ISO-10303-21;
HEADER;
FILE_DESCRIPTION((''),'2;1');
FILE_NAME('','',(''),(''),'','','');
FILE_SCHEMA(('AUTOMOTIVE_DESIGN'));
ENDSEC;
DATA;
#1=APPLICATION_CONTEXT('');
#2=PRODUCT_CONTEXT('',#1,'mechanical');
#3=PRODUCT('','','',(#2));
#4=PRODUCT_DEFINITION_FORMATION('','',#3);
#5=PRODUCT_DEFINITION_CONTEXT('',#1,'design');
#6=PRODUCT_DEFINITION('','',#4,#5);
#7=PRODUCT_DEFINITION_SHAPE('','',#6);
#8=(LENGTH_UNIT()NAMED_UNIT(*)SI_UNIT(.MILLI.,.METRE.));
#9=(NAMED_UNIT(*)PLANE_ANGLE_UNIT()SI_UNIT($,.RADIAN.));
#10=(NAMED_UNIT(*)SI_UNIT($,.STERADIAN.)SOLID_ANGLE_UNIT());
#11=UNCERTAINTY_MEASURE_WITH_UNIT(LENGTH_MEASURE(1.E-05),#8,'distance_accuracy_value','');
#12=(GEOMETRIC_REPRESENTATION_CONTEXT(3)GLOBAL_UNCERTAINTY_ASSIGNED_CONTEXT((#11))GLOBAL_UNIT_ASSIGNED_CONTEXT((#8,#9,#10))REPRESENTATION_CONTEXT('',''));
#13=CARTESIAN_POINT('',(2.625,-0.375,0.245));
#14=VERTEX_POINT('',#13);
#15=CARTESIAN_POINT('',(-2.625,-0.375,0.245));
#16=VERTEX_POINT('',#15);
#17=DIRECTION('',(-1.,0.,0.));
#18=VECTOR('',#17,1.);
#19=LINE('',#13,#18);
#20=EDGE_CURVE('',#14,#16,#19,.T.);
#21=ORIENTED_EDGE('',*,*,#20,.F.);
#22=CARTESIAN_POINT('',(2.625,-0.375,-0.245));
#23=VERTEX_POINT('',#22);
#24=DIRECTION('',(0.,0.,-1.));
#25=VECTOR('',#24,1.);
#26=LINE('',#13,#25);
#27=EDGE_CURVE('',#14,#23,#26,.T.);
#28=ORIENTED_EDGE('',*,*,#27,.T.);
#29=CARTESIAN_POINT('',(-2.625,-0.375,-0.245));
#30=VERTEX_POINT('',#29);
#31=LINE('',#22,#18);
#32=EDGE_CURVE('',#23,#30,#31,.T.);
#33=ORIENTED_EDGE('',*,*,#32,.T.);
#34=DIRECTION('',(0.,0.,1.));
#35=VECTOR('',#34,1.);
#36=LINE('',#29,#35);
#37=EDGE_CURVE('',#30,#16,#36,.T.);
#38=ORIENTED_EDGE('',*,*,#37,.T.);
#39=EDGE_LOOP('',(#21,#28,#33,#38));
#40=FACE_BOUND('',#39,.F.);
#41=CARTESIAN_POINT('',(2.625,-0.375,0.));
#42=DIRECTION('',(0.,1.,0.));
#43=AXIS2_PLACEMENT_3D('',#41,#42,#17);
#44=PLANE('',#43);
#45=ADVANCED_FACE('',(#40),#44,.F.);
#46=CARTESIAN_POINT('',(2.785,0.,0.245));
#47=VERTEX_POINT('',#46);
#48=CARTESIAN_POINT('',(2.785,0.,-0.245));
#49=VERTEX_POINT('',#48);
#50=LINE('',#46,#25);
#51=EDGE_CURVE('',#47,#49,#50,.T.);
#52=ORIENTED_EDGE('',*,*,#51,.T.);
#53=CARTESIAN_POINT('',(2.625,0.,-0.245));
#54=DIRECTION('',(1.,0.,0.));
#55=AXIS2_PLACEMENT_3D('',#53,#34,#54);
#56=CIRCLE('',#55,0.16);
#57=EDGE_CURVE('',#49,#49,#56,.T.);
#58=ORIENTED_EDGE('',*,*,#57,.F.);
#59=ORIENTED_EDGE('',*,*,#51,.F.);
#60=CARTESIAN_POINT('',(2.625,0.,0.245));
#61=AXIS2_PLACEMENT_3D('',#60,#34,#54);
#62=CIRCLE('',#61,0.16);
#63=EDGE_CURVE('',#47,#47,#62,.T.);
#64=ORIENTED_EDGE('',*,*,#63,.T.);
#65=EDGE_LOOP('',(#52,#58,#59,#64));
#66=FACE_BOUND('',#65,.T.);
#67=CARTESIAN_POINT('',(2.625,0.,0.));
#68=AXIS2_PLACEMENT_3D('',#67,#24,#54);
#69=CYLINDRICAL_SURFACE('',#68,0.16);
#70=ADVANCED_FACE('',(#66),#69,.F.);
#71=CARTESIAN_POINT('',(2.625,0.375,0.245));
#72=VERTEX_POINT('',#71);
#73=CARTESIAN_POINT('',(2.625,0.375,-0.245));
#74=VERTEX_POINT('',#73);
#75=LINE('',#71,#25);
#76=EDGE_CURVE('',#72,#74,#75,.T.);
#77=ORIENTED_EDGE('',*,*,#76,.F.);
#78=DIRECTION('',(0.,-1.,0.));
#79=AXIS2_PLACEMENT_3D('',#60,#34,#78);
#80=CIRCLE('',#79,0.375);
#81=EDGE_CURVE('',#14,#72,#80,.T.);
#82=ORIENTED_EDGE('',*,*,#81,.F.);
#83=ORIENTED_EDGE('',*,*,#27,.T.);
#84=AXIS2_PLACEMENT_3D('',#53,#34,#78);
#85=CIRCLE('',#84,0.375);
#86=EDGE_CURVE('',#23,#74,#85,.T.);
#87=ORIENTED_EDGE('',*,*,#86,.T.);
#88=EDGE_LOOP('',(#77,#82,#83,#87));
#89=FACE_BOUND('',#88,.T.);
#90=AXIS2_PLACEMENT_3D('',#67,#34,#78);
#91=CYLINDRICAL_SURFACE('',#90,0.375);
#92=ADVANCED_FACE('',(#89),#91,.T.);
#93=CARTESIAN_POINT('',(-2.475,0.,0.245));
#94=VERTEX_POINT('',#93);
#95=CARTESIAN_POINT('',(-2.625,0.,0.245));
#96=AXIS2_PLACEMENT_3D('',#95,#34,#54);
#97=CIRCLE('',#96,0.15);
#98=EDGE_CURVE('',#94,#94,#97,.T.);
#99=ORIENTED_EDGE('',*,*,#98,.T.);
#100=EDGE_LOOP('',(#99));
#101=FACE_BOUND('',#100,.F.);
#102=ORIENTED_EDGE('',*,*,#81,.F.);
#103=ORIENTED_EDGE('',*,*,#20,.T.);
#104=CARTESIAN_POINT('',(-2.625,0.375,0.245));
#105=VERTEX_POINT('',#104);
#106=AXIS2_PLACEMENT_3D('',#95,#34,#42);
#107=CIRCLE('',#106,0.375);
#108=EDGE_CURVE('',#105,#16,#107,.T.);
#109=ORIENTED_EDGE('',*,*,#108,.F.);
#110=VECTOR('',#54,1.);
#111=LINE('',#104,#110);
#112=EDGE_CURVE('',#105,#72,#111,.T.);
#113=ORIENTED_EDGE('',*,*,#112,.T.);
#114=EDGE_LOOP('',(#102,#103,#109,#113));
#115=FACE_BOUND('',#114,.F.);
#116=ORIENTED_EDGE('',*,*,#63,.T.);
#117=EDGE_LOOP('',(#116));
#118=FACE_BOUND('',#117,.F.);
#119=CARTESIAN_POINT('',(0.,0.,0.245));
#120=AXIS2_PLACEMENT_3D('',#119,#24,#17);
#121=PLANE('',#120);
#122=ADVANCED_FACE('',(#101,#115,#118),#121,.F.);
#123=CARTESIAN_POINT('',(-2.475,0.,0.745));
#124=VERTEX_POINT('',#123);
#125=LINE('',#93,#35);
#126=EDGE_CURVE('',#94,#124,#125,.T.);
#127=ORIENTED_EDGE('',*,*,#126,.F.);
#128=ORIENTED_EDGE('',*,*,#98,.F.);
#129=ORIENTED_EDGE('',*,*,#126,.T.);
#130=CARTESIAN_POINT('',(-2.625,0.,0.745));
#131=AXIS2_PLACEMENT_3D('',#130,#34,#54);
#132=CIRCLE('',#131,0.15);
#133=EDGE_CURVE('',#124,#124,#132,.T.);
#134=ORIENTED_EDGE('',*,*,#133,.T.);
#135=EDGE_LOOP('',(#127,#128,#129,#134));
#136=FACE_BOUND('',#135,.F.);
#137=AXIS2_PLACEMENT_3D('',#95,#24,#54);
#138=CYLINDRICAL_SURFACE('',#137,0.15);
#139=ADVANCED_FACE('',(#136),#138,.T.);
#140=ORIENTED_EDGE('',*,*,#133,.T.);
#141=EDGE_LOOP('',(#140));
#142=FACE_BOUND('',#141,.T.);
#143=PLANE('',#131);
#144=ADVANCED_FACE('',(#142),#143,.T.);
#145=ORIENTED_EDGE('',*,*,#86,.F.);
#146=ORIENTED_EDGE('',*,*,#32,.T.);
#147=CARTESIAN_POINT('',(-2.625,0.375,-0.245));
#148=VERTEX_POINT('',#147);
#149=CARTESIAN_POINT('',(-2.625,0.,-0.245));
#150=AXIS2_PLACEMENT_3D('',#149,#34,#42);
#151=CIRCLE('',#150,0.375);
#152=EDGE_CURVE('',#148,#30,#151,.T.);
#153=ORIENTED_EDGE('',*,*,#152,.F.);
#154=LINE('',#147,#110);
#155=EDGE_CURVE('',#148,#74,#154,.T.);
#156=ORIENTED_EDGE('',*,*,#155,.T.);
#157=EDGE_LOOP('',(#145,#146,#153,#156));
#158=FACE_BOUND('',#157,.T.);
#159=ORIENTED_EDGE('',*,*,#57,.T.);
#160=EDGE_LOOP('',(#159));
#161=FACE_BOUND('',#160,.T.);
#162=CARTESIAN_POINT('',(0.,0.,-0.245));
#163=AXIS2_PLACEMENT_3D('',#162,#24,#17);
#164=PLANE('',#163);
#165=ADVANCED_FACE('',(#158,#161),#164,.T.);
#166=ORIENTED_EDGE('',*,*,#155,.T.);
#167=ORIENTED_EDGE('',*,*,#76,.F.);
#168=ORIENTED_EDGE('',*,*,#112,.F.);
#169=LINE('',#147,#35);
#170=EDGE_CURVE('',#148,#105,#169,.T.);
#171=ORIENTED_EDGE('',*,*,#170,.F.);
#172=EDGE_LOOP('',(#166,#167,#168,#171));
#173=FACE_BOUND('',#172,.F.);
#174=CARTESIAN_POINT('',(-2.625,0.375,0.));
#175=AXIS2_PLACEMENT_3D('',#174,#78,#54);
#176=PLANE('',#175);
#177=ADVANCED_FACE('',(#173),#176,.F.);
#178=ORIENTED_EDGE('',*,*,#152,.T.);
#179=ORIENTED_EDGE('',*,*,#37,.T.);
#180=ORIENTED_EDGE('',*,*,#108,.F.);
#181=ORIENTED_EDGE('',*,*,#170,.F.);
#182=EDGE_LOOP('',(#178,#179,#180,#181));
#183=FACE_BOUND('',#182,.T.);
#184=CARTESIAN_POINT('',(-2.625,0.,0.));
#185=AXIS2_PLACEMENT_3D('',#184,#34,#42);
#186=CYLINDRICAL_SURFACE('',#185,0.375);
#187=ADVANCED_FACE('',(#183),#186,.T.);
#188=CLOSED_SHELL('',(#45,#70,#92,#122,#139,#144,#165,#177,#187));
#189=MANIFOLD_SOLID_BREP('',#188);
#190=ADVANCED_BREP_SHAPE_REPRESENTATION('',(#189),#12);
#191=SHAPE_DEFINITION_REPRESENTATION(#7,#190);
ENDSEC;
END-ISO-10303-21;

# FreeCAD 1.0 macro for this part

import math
import FreeCAD as App
import Part
import Sketcher

doc = App.newDocument("Part")
body = doc.addObject("PartDesign::Body", "Body")

# Sketch on XY plane
sketch1 = body.newObject("Sketcher::SketchObject", "Sketch")
sketch1.AttachmentSupport = (doc.getObject("XY_Plane"), [""])
sketch1.MapMode = "FlatFace"
sketch1.addGeometry([
    Part.LineSegment(App.Vector(2.62, 0.38, 0), App.Vector(-2.62, 0.38, 0)),  # 0
    Part.ArcOfCircle(Part.Circle(App.Vector(-2.62, 0, 0), App.Vector(0, 0, 1), 0.38), math.radians(90), math.radians(270)),  # 1
    Part.LineSegment(App.Vector(-2.62, -0.38, 0), App.Vector(2.62, -0.38, 0)),  # 2
    Part.ArcOfCircle(Part.Circle(App.Vector(2.62, 0, 0), App.Vector(0, 0, 1), 0.38), math.radians(-90), math.radians(90)),  # 3
    Part.Circle(App.Vector(2.62, 0, 0), App.Vector(0, 0, 1), 0.16),  # 4
], False)
sketch1.addConstraint([
    Sketcher.Constraint("Tangent", 0, 2, 1, 1),
    Sketcher.Constraint("Tangent", 1, 2, 2, 1),
    Sketcher.Constraint("Tangent", 2, 2, 3, 1),
    Sketcher.Constraint("Tangent", 3, 2, 0, 1),
    Sketcher.Constraint("Horizontal", 0),
    Sketcher.Constraint("Horizontal", 2),
    Sketcher.Constraint("Coincident", 4, 3, 3, 3),
    Sketcher.Constraint("Symmetric", 1, 3, 3, 3, -1, 1),
    Sketcher.Constraint("Diameter", 4, 0.32),
    Sketcher.Constraint("Radius", 1, 0.375),
    Sketcher.Constraint("DistanceX", 0, 2, 0, 1, 5.25),
])
pad1 = body.newObject("PartDesign::Pad", "Pad")
pad1.Profile = sketch1
pad1.Length = 0.49
pad1.Midplane = True

# Sketch on XY plane
sketch2 = body.newObject("Sketcher::SketchObject", "Sketch001")
sketch2.AttachmentSupport = (doc.getObject("XY_Plane"), [""])
sketch2.MapMode = "FlatFace"
sketch2.AttachmentOffset = App.Placement(App.Vector(0, 0, 0.245), App.Rotation())
sketch2.addGeometry(Part.Circle(App.Vector(-2.62, 0, 0), App.Vector(0, 0, 1), 0.15), False)
sketch2.addConstraint([
    Sketcher.Constraint("PointOnObject", 0, 3, -1),
    Sketcher.Constraint("Diameter", 0, 0.3),
    Sketcher.Constraint("DistanceX", 0, 3, -1, 1, 2.625),
])
pad2 = body.newObject("PartDesign::Pad", "Pad001")
pad2.Profile = sketch2
pad2.Length = 0.5

doc.recompute()
